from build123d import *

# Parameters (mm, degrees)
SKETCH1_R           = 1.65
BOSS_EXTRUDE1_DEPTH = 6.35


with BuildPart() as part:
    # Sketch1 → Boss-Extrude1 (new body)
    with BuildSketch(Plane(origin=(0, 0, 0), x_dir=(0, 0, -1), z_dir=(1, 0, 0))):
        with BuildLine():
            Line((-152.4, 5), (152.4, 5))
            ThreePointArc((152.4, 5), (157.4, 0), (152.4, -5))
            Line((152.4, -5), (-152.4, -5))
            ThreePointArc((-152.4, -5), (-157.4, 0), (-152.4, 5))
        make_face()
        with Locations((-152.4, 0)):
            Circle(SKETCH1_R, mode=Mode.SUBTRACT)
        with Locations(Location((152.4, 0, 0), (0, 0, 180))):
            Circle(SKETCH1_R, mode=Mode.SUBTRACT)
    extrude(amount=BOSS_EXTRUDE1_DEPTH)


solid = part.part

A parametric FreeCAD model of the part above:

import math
import FreeCAD as App
import Part
import Sketcher
from FreeCAD import Vector
Q = App.Units.Quantity

doc = App.newDocument("Part")
body = doc.addObject("PartDesign::Body", "Body")

# Sketch on YZ plane
sketch1 = body.newObject("Sketcher::SketchObject", "Sketch")
sketch1.AttachmentSupport = (doc.getObject("YZ_Plane"), [""])
sketch1.MapMode = "FlatFace"
sketch1.addGeometry(Part.LineSegment(Vector(5, -152.4, 0), Vector(5, 152.4, 0)), False)
sketch1.addGeometry(Part.ArcOfCircle(Part.Circle(Vector(0, 152.4, 0), Vector(0, 0, 1), 5), math.radians(0), math.radians(180)), False)
sketch1.addGeometry(Part.LineSegment(Vector(-5, 152.4, 0), Vector(-5, -152.4, 0)), False)
sketch1.addGeometry(Part.ArcOfCircle(Part.Circle(Vector(0, -152.4, 0), Vector(0, 0, 1), 5), math.radians(180), math.radians(360)), False)
sketch1.addGeometry(Part.Circle(Vector(0, -152.4, 0), Vector(0, 0, 1), 1.6), False)
sketch1.addGeometry(Part.Circle(Vector(0, 152.4, 0), Vector(0, 0, 1), 1.6), False)
sketch1.addConstraint(Sketcher.Constraint("Tangent", 0, 2, 1, 1))
sketch1.addConstraint(Sketcher.Constraint("Tangent", 1, 2, 2, 1))
sketch1.addConstraint(Sketcher.Constraint("Tangent", 2, 2, 3, 1))
sketch1.addConstraint(Sketcher.Constraint("Tangent", 3, 2, 0, 1))
sketch1.addConstraint(Sketcher.Constraint("Vertical", 0))
sketch1.addConstraint(Sketcher.Constraint("Vertical", 2))
sketch1.addConstraint(Sketcher.Constraint("Coincident", 4, 3, 3, 3))
sketch1.addConstraint(Sketcher.Constraint("Coincident", 5, 3, 1, 3))
sketch1.addConstraint(Sketcher.Constraint("Equal", 4, 5))
sketch1.addConstraint(Sketcher.Constraint("Symmetric", 1, 3, 3, 3, -1, 1))
sketch1.addConstraint(Sketcher.Constraint("Radius", 1, Q("5 mm")))
sketch1.addConstraint(Sketcher.Constraint("Diameter", 4, Q("3.3 mm")))
sketch1.addConstraint(Sketcher.Constraint("DistanceY", 0, 1, 0, 2, Q("304.8 mm")))
pad1 = body.newObject("PartDesign::Pad", "Pad")
pad1.Profile = sketch1
pad1.Length = 6.35

doc.recompute()
